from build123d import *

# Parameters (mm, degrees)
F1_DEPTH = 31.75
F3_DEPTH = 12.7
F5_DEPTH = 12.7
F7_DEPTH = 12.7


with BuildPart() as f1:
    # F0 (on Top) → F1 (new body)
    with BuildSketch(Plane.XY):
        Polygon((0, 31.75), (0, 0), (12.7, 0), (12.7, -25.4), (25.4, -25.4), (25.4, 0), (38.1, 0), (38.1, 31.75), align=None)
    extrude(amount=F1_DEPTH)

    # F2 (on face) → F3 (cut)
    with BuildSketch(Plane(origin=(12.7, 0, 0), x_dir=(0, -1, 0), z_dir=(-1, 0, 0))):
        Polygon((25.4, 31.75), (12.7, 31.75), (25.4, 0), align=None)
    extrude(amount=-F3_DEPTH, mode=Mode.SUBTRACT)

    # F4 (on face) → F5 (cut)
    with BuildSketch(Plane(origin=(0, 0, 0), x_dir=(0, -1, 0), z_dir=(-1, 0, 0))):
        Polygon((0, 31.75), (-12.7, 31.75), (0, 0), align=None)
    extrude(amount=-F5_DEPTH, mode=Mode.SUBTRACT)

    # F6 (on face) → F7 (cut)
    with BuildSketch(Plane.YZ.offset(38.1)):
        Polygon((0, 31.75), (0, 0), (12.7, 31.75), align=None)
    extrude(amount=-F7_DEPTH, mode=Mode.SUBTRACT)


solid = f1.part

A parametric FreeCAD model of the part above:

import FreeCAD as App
import Part
import Sketcher
Q = App.Units.Quantity

doc = App.newDocument("Part")
body = doc.addObject("PartDesign::Body", "Body")

sketch1 = doc.addObject("Sketcher::SketchObject", "Sketch")
body.addObject(sketch1)
sketch1.AttachmentSupport = (doc.XY_Plane, [""])
sketch1.MapMode = "FlatFace"
sketch1.addGeometry([
    Part.LineSegment(App.Vector(0, 32, 0), App.Vector(0, 0, 0)),
    Part.LineSegment(App.Vector(0, 0, 0), App.Vector(13, 0, 0)),
    Part.LineSegment(App.Vector(13, 0, 0), App.Vector(13, -25, 0)),
    Part.LineSegment(App.Vector(13, -25, 0), App.Vector(25, -25, 0)),
    Part.LineSegment(App.Vector(25, -25, 0), App.Vector(25, 0, 0)),
    Part.LineSegment(App.Vector(25, 0, 0), App.Vector(38, 0, 0)),
    Part.LineSegment(App.Vector(38, 0, 0), App.Vector(38, 32, 0)),
    Part.LineSegment(App.Vector(38, 32, 0), App.Vector(0, 32, 0)),
], False)
sketch1.addConstraint([
    Sketcher.Constraint("Coincident", 0, 2, 1, 1),
    Sketcher.Constraint("Coincident", 1, 2, 2, 1),
    Sketcher.Constraint("Coincident", 2, 2, 3, 1),
    Sketcher.Constraint("Coincident", 3, 2, 4, 1),
    Sketcher.Constraint("Coincident", 4, 2, 5, 1),
    Sketcher.Constraint("Coincident", 5, 2, 6, 1),
    Sketcher.Constraint("Coincident", 6, 2, 7, 1),
    Sketcher.Constraint("Coincident", 7, 2, 0, 1),
    Sketcher.Constraint("Vertical", 0),
    Sketcher.Constraint("Horizontal", 1),
    Sketcher.Constraint("Vertical", 2),
    Sketcher.Constraint("Horizontal", 3),
    Sketcher.Constraint("Vertical", 4),
    Sketcher.Constraint("Horizontal", 5),
    Sketcher.Constraint("Vertical", 6),
    Sketcher.Constraint("Horizontal", 7),
    Sketcher.Constraint("Coincident", 0, 2, -1, 1),
    Sketcher.Constraint("PointOnObject", 4, 2, -1),
    Sketcher.Constraint("Equal", 1, 3),
    Sketcher.Constraint("Equal", 3, 5),
    Sketcher.Constraint("DistanceY", 2, 2, 2, 1, Q("1 in")),
    Sketcher.Constraint("DistanceX", 1, 1, 1, 2, Q("0.5 in")),
    Sketcher.Constraint("DistanceY", 0, 2, 0, 1, Q("1.25 in")),
])
pad1 = doc.addObject("PartDesign::Pad", "Pad")
body.addObject(pad1)
pad1.Profile = sketch1
pad1.Length = Q("1.25 in")

sketch2 = doc.addObject("Sketcher::SketchObject", "Sketch001")
body.addObject(sketch2)
sketch2.AttachmentSupport = (doc.YZ_Plane, [""])
sketch2.MapMode = "FlatFace"
sketch2.AttachmentOffset = App.Placement(App.Vector(0, 0, 0.5 * 25.4), App.Rotation())
sketch2.addGeometry([
    Part.LineSegment(App.Vector(-25, 32, 0), App.Vector(-13, 32, 0)),
    Part.LineSegment(App.Vector(-13, 32, 0), App.Vector(-25, 0, 0)),
    Part.LineSegment(App.Vector(-25, 0, 0), App.Vector(-25, 32, 0)),
], False)
sketch2.addConstraint([
    Sketcher.Constraint("Coincident", 0, 2, 1, 1),
    Sketcher.Constraint("Coincident", 1, 2, 2, 1),
    Sketcher.Constraint("Coincident", 2, 2, 0, 1),
    Sketcher.Constraint("Horizontal", 0),
    Sketcher.Constraint("Vertical", 2),
    Sketcher.Constraint("PointOnObject", 1, 2, -1),
    Sketcher.Constraint("DistanceX", 0, 1, 0, 2, Q("0.5 in")),
    Sketcher.Constraint("DistanceX", 1, 2, -1, 1, Q("1 in")),
    Sketcher.Constraint("DistanceY", 2, 1, 2, 2, Q("1.25 in")),
])
pocket1 = doc.addObject("PartDesign::Pocket", "Pocket")
body.addObject(pocket1)
pocket1.Profile = sketch2
pocket1.Length = Q("0.5 in")
pocket1.Reversed = True

sketch3 = doc.addObject("Sketcher::SketchObject", "Sketch002")
body.addObject(sketch3)
sketch3.AttachmentSupport = (doc.YZ_Plane, [""])
sketch3.MapMode = "FlatFace"
sketch3.addGeometry([
    Part.LineSegment(App.Vector(0, 32, 0), App.Vector(13, 32, 0)),
    Part.LineSegment(App.Vector(13, 32, 0), App.Vector(0, 0, 0)),
    Part.LineSegment(App.Vector(0, 0, 0), App.Vector(0, 32, 0)),
], False)
sketch3.addConstraint([
    Sketcher.Constraint("Coincident", 0, 2, 1, 1),
    Sketcher.Constraint("Coincident", 1, 2, 2, 1),
    Sketcher.Constraint("Coincident", 2, 2, 0, 1),
    Sketcher.Constraint("Horizontal", 0),
    Sketcher.Constraint("Vertical", 2),
    Sketcher.Constraint("Coincident", 1, 2, -1, 1),
    Sketcher.Constraint("DistanceX", 0, 1, 0, 2, Q("0.5 in")),
    Sketcher.Constraint("DistanceY", 2, 1, 2, 2, Q("1.25 in")),
])
pocket2 = doc.addObject("PartDesign::Pocket", "Pocket001")
body.addObject(pocket2)
pocket2.Profile = sketch3
pocket2.Length = Q("0.5 in")
pocket2.Reversed = True

sketch4 = doc.addObject("Sketcher::SketchObject", "Sketch003")
body.addObject(sketch4)
sketch4.AttachmentSupport = (doc.YZ_Plane, [""])
sketch4.MapMode = "FlatFace"
sketch4.AttachmentOffset = App.Placement(App.Vector(0, 0, 1.5 * 25.4), App.Rotation())
sketch4.addGeometry([
    Part.LineSegment(App.Vector(0, 32, 0), App.Vector(0, 0, 0)),
    Part.LineSegment(App.Vector(0, 0, 0), App.Vector(13, 32, 0)),
    Part.LineSegment(App.Vector(13, 32, 0), App.Vector(0, 32, 0)),
], False)
sketch4.addConstraint([
    Sketcher.Constraint("Coincident", 0, 2, 1, 1),
    Sketcher.Constraint("Coincident", 1, 2, 2, 1),
    Sketcher.Constraint("Coincident", 2, 2, 0, 1),
    Sketcher.Constraint("Vertical", 0),
    Sketcher.Constraint("Horizontal", 2),
    Sketcher.Constraint("Coincident", 0, 2, -1, 1),
    Sketcher.Constraint("DistanceX", 2, 2, 2, 1, Q("0.5 in")),
    Sketcher.Constraint("DistanceY", 0, 2, 0, 1, Q("1.25 in")),
])
pocket3 = doc.addObject("PartDesign::Pocket", "Pocket002")
body.addObject(pocket3)
pocket3.Profile = sketch4
pocket3.Length = Q("0.5 in")

doc.recompute()
